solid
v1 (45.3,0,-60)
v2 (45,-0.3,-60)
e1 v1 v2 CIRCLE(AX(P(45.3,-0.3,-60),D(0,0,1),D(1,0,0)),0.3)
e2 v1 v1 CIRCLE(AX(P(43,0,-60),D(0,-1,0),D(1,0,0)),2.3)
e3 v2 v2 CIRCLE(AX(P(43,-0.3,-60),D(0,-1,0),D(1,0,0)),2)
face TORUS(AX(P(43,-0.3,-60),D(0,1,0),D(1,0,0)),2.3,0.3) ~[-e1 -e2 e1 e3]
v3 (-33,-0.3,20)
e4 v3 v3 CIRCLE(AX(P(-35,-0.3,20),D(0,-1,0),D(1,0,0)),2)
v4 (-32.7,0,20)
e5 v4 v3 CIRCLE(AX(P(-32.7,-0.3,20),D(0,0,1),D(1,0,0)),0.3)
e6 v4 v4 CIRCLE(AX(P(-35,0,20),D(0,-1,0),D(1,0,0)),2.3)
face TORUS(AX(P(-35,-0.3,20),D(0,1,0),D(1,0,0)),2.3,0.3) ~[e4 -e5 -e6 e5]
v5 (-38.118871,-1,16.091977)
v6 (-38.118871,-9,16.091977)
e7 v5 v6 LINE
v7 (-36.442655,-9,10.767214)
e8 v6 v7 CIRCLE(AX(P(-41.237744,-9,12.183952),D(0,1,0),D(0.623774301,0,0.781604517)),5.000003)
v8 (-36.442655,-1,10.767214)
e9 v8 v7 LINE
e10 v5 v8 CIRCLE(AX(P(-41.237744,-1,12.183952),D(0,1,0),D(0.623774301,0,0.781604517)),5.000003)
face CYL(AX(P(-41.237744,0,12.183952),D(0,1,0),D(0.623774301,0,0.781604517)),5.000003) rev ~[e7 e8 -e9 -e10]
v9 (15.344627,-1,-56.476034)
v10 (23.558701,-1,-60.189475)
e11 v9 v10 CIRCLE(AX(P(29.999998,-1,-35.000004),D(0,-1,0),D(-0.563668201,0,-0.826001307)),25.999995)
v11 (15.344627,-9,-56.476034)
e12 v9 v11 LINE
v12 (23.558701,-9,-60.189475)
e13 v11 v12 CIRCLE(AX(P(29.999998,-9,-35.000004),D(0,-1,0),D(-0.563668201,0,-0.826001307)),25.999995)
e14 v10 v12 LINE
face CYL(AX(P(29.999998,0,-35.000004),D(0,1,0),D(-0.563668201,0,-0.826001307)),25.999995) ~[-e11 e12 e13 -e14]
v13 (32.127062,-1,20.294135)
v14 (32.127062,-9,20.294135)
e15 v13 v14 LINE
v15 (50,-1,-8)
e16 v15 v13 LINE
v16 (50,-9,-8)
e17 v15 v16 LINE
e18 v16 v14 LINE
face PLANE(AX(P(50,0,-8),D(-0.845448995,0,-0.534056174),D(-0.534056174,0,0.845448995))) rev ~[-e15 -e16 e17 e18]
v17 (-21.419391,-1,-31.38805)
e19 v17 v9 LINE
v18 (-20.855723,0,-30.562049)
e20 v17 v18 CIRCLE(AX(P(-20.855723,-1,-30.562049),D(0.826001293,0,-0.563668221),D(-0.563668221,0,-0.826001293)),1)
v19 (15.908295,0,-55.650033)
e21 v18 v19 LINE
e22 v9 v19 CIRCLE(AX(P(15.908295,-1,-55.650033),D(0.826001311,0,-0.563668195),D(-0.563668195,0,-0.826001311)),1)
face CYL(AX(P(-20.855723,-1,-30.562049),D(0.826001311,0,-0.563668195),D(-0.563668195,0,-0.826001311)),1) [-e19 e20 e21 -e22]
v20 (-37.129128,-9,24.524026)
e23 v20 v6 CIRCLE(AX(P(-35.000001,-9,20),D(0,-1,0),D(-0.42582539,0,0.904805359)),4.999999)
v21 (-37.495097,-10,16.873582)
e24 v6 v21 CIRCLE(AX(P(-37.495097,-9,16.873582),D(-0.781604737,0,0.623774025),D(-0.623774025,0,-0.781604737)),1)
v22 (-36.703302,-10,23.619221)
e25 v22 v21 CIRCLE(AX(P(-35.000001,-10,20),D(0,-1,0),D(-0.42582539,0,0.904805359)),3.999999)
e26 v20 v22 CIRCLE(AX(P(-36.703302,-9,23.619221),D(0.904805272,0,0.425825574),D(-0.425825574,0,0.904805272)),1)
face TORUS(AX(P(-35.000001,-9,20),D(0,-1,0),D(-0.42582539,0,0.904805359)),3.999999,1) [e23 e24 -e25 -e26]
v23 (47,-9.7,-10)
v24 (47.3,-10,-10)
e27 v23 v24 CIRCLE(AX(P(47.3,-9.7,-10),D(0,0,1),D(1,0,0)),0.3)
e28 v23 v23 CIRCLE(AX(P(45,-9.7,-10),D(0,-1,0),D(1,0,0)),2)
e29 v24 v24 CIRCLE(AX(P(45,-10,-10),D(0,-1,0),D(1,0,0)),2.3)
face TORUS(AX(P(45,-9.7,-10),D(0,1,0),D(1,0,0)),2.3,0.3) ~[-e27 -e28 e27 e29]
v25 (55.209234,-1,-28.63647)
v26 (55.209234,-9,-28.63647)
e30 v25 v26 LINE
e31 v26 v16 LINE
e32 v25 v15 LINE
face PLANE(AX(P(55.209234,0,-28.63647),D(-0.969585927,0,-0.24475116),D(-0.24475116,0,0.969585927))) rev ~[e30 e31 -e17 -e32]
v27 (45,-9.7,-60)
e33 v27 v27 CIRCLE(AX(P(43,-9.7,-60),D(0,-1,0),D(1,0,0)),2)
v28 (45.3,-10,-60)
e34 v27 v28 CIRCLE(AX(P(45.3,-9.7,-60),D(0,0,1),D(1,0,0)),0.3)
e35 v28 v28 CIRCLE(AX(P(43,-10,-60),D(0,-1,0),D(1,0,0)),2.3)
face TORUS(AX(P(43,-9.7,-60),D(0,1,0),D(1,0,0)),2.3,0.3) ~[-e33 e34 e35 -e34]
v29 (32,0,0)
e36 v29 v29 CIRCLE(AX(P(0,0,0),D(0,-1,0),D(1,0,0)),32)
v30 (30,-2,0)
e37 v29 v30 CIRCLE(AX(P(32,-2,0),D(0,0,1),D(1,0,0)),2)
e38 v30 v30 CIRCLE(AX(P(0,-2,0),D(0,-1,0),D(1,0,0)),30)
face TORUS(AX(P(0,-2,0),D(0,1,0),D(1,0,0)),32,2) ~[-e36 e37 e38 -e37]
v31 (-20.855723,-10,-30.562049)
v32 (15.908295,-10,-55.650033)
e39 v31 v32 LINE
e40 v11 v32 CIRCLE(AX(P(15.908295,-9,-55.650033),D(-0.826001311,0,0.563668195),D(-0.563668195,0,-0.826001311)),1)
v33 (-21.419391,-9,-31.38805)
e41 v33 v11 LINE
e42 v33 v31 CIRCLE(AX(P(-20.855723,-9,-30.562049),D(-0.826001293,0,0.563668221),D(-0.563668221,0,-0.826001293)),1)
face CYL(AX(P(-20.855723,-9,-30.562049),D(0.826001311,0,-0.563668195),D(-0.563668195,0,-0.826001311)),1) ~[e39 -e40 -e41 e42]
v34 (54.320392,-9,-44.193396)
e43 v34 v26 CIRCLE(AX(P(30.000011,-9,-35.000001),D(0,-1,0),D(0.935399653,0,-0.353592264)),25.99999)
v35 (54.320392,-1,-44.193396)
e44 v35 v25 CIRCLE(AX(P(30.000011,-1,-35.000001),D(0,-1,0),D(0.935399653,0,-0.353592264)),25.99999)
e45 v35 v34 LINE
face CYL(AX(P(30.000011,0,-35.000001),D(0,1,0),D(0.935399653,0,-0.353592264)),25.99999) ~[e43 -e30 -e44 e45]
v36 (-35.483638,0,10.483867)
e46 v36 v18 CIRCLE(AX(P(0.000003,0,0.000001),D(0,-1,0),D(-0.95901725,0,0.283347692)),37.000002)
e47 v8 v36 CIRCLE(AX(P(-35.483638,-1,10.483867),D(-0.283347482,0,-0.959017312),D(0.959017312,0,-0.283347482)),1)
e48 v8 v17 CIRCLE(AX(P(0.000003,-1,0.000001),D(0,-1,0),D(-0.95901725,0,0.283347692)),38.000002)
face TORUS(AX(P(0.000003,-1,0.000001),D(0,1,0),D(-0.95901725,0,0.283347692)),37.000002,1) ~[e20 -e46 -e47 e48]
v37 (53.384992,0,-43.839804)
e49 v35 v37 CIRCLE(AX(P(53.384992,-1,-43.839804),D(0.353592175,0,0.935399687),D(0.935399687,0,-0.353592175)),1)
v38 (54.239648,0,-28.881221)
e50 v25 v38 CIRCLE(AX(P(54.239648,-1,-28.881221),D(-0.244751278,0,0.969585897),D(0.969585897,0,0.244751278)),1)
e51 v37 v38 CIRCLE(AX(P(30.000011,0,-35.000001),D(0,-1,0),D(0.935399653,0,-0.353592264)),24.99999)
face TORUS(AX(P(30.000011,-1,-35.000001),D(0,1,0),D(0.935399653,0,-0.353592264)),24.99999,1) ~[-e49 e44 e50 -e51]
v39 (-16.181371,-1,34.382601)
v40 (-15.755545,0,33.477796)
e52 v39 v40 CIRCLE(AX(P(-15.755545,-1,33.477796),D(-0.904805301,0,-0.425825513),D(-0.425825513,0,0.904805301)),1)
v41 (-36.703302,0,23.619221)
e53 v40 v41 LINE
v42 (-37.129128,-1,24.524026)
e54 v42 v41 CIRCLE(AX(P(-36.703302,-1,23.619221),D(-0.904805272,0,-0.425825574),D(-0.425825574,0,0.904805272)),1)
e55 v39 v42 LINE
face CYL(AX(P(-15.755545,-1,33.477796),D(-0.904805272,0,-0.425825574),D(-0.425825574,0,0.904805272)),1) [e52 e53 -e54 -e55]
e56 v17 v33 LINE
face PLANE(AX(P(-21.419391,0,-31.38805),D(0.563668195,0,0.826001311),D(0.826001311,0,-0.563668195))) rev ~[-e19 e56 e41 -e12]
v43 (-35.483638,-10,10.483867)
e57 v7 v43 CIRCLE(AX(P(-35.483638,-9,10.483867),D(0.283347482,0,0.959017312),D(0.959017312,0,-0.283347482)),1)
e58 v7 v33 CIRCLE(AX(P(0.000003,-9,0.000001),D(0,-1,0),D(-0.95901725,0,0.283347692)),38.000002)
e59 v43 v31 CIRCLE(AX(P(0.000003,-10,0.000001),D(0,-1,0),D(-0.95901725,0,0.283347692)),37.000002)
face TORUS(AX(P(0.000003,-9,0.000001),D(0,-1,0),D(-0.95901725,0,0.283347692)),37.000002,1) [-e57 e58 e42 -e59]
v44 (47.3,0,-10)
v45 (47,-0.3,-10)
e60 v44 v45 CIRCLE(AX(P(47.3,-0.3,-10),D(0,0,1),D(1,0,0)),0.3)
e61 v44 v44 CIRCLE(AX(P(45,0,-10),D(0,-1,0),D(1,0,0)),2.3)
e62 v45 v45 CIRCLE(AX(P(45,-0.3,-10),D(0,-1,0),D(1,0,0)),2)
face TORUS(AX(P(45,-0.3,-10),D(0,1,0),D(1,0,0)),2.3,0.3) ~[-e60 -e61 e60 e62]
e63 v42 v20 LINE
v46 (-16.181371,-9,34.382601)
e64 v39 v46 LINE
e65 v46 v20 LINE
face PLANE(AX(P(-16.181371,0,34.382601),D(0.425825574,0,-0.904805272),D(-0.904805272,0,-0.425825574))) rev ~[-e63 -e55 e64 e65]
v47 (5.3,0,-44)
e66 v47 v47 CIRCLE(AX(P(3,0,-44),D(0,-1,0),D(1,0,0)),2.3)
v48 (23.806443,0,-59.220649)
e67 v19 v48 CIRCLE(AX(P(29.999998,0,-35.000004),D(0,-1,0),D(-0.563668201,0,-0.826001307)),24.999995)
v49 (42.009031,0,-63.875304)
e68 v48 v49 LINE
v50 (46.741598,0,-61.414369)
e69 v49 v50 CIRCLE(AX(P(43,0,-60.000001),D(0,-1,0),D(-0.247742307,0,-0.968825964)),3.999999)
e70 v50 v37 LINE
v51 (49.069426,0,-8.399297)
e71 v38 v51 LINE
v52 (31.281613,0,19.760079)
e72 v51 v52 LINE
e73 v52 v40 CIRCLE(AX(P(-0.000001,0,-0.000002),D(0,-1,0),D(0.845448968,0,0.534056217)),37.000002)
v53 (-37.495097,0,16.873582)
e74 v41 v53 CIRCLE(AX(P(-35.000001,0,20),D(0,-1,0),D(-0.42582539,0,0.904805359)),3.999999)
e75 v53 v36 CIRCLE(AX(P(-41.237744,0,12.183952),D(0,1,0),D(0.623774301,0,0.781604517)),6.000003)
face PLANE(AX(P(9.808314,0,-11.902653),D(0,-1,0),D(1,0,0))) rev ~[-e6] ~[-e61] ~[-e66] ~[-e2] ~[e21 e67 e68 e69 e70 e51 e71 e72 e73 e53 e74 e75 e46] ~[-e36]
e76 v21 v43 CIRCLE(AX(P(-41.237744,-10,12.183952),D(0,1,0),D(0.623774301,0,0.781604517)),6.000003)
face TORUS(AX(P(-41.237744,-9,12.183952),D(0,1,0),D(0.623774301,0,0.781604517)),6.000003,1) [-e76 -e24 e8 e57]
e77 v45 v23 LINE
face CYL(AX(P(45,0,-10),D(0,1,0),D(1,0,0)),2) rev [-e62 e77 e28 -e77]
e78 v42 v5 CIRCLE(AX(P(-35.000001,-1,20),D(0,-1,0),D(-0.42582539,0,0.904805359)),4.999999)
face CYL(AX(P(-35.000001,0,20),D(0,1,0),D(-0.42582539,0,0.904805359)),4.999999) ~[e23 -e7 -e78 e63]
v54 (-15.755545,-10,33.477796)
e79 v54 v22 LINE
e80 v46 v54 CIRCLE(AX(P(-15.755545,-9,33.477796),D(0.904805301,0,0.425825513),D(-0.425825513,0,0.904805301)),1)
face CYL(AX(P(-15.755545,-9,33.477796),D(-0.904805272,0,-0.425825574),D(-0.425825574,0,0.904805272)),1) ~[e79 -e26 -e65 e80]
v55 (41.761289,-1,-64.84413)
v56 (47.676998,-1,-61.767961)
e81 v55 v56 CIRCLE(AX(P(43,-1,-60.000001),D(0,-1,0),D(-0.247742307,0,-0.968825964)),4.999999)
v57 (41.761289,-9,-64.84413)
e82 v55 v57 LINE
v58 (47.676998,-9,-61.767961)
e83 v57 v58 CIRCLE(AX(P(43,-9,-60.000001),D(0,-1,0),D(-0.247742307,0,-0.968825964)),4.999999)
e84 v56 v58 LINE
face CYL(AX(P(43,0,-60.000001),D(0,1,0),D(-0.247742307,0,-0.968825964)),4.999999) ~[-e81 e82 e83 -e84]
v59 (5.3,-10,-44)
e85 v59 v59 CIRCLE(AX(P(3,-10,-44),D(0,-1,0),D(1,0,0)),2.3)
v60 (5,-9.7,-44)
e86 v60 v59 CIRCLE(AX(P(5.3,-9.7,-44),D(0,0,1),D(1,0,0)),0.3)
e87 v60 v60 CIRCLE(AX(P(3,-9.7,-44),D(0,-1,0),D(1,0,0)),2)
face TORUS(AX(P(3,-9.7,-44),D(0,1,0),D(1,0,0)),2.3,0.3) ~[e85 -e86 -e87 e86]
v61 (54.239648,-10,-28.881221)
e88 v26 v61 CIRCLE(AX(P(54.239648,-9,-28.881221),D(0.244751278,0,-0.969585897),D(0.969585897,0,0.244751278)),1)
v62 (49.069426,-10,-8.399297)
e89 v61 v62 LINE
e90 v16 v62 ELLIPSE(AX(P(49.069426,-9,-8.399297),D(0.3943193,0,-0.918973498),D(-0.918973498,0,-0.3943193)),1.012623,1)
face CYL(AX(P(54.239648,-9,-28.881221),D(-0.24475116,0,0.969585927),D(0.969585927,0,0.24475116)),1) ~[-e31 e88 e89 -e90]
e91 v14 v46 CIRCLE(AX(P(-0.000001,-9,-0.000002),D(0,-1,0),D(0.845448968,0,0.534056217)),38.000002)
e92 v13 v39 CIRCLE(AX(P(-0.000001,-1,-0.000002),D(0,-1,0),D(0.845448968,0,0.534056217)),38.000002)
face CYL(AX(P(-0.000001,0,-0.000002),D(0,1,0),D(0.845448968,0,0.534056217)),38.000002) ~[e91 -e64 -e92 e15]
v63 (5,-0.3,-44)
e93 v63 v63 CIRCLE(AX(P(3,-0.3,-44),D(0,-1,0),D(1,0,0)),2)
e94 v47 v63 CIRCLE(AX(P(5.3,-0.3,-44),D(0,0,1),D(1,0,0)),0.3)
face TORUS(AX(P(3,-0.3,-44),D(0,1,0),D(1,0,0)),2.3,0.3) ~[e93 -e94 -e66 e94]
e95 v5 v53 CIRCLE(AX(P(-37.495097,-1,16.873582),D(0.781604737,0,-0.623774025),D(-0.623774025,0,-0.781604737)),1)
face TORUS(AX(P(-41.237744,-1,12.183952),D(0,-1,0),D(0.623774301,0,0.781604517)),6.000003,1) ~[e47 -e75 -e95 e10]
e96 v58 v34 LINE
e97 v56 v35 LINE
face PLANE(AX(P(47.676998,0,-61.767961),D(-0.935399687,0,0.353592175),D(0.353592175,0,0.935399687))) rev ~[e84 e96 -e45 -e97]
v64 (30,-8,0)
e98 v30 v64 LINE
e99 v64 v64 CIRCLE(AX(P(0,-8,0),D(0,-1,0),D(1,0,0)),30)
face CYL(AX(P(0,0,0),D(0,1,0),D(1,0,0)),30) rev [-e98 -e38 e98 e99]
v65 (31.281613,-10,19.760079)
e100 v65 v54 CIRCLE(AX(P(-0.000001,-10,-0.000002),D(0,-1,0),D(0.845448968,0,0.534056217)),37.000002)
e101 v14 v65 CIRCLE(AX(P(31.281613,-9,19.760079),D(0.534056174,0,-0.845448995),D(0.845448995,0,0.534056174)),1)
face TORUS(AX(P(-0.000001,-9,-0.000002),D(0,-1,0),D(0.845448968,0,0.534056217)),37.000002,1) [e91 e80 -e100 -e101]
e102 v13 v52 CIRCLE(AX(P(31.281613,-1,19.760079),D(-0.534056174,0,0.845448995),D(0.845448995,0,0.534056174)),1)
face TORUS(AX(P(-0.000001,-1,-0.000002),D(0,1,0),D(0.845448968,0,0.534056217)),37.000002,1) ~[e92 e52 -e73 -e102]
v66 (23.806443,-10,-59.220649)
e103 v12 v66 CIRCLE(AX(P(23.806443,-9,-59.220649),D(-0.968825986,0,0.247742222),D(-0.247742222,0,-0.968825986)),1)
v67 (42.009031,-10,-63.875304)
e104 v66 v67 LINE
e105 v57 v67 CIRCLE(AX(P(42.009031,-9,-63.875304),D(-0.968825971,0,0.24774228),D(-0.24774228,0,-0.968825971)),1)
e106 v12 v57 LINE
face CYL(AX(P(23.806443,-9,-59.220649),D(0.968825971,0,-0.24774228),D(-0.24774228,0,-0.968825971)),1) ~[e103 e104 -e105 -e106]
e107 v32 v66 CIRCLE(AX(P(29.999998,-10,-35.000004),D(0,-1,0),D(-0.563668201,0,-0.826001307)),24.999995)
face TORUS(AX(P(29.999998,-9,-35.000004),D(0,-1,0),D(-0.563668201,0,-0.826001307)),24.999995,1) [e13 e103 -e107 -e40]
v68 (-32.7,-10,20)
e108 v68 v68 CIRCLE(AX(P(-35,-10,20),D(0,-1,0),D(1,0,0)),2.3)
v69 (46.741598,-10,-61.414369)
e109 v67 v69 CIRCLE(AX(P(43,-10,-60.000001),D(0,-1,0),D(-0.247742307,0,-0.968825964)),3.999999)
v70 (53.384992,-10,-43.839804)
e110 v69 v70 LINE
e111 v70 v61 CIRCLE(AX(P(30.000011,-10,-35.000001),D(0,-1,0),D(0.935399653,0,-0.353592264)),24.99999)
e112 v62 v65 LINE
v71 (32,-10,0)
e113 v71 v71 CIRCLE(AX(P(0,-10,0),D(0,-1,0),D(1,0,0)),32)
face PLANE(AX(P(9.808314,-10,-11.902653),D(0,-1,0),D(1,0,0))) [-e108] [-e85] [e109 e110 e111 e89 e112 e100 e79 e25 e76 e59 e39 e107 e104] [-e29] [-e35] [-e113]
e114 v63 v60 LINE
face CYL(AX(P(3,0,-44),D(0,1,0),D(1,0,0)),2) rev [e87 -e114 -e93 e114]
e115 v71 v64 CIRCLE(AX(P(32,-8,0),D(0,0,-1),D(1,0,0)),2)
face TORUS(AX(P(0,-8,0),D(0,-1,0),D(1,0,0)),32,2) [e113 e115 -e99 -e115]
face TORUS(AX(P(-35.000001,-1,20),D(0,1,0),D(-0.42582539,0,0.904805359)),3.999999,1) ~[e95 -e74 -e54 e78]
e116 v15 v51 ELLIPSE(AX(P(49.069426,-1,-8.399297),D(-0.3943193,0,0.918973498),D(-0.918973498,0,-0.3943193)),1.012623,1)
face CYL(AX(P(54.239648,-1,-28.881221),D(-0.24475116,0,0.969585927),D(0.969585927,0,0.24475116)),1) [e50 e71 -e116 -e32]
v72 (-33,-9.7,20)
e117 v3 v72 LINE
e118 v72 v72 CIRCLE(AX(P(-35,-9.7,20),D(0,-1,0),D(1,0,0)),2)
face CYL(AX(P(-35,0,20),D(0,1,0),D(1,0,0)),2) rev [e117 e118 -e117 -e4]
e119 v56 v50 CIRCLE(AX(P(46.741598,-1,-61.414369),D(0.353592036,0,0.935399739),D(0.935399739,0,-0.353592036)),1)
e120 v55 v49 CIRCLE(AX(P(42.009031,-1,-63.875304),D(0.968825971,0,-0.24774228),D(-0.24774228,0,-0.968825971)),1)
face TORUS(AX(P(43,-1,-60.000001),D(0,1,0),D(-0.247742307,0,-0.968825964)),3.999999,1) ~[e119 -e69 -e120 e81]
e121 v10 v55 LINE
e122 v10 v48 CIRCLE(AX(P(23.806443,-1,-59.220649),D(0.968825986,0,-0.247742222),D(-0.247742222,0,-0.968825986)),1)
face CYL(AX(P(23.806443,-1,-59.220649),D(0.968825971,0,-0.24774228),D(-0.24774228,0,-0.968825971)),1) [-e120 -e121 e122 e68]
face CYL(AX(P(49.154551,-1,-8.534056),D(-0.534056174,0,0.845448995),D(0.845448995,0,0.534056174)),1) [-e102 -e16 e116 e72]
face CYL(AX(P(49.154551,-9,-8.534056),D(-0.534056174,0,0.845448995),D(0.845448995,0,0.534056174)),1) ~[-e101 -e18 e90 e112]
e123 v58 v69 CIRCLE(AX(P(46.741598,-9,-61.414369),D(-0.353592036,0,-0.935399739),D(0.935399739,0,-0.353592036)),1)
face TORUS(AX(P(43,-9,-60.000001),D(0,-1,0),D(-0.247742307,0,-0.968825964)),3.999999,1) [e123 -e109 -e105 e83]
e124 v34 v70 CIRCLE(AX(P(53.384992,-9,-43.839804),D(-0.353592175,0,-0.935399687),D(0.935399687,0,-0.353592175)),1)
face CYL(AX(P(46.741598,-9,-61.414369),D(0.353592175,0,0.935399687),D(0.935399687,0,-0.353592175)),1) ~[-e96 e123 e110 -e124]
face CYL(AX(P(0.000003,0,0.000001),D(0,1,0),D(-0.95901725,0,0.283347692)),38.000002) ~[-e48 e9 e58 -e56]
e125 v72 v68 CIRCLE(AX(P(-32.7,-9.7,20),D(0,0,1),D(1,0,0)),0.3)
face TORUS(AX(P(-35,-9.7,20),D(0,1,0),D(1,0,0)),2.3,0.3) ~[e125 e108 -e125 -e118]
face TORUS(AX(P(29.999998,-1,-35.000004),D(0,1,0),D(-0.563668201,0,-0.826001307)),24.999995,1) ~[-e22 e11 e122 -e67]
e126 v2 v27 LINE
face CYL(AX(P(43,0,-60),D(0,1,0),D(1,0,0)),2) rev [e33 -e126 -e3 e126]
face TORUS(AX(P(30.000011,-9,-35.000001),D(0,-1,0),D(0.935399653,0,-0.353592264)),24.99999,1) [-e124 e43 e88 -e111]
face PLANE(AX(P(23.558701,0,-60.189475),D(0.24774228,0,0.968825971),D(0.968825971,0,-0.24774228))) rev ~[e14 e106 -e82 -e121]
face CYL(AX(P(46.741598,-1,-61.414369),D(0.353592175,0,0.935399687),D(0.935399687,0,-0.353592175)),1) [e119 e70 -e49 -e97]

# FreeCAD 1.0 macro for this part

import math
import FreeCAD as App
import Part
import Sketcher


def edges_at(feature, points):
    """Names of the edges that pass closest to the given points."""
    edges = feature.Shape.Edges
    near = lambda p: min(range(len(edges)), key=lambda i: edges[i].distToShape(Part.Vertex(*p))[0])
    return sorted({f"Edge{near(p) + 1}" for p in points})

doc = App.newDocument("Part")
body = doc.addObject("PartDesign::Body", "Body")

# Sketch on XZ plane
sketch1 = body.newObject("Sketcher::SketchObject", "Sketch")
sketch1.AttachmentSupport = (doc.getObject("XZ_Plane"), [""])
sketch1.MapMode = "FlatFace"
sketch1.addGeometry([
    Part.LineSegment(App.Vector(50, -8, 0), App.Vector(32.1, 20.3, 0)),  # 0
    Part.ArcOfCircle(Part.Circle(App.Vector(0, 0, 0), App.Vector(0, 0, 1), 38), math.radians(32), math.radians(115)),  # 1
    Part.LineSegment(App.Vector(-16.2, 34.4, 0), App.Vector(-37.1, 24.5, 0)),  # 2
    Part.ArcOfCircle(Part.Circle(App.Vector(-35, 20, 0), App.Vector(0, 0, 1), 5), math.radians(115), math.radians(231)),  # 3
    Part.ArcOfCircle(Part.Circle(App.Vector(-41.2, 12.2, 0), App.Vector(0, 0, 1), 5), math.radians(-16), math.radians(51)),  # 4
    Part.ArcOfCircle(Part.Circle(App.Vector(0, 0, 0), App.Vector(0, 0, 1), 38), math.radians(164), math.radians(236)),  # 5
    Part.LineSegment(App.Vector(-21.4, -31.4, 0), App.Vector(15.3, -56.5, 0)),  # 6
    Part.ArcOfCircle(Part.Circle(App.Vector(30, -35, 0), App.Vector(0, 0, 1), 26), math.radians(-124.31), math.radians(-104.34)),  # 7
    Part.LineSegment(App.Vector(23.6, -60.2, 0), App.Vector(41.8, -64.8, 0)),  # 8
    Part.ArcOfCircle(Part.Circle(App.Vector(43, -60, 0), App.Vector(0, 0, 1), 5), math.radians(-104), math.radians(-21)),  # 9
    Part.LineSegment(App.Vector(47.7, -61.8, 0), App.Vector(54.3, -44.2, 0)),  # 10
    Part.ArcOfCircle(Part.Circle(App.Vector(30, -35, 0), App.Vector(0, 0, 1), 26), math.radians(-21), math.radians(14)),  # 11
    Part.LineSegment(App.Vector(55.2, -28.6, 0), App.Vector(50, -8, 0)),  # 12
    Part.Circle(App.Vector(3, -44, 0), App.Vector(0, 0, 1), 2),  # 13
    Part.Circle(App.Vector(43, -60, 0), App.Vector(0, 0, 1), 2),  # 14
    Part.Circle(App.Vector(0, 0, 0), App.Vector(0, 0, 1), 30),  # 15
    Part.Circle(App.Vector(-35, 20, 0), App.Vector(0, 0, 1), 2),  # 16
    Part.Circle(App.Vector(45, -10, 0), App.Vector(0, 0, 1), 2),  # 17
], False)
sketch1.addConstraint([
    Sketcher.Constraint("Tangent", 0, 2, 1, 1),
    Sketcher.Constraint("Tangent", 1, 2, 2, 1),
    Sketcher.Constraint("Tangent", 2, 2, 3, 1),
    Sketcher.Constraint("Tangent", 3, 2, 4, 2),
    Sketcher.Constraint("Tangent", 4, 1, 5, 1),
    Sketcher.Constraint("Tangent", 5, 2, 6, 1),
    Sketcher.Constraint("Tangent", 6, 2, 7, 1),
    Sketcher.Constraint("Tangent", 7, 2, 8, 1),
    Sketcher.Constraint("Tangent", 8, 2, 9, 1),
    Sketcher.Constraint("Tangent", 9, 2, 10, 1),
    Sketcher.Constraint("Tangent", 10, 2, 11, 1),
    Sketcher.Constraint("Tangent", 11, 2, 12, 1),
    Sketcher.Constraint("Coincident", 12, 2, 0, 1),
    Sketcher.Constraint("Coincident", 1, 3, -1, 1),
    Sketcher.Constraint("Coincident", 5, 3, -1, 1),
    Sketcher.Constraint("Coincident", 15, 3, -1, 1),
    Sketcher.Constraint("Coincident", 14, 3, 9, 3),
    Sketcher.Constraint("Coincident", 16, 3, 3, 3),
    Sketcher.Constraint("Equal", 1, 5),
    Sketcher.Constraint("Equal", 3, 9),
    Sketcher.Constraint("Equal", 13, 14),
    Sketcher.Constraint("Equal", 14, 16),
    Sketcher.Constraint("Equal", 16, 17),
    Sketcher.Constraint("Equal", 8, 10),
    Sketcher.Constraint("Diameter", 13, 4.0),
    Sketcher.Constraint("Diameter", 15, 60.0),
    Sketcher.Constraint("Radius", 3, 4.999999),
    Sketcher.Constraint("DistanceX", 3, 3, -1, 1, 35.000001),
    Sketcher.Constraint("DistanceY", -1, 1, 3, 3, 20.0),
    Sketcher.Constraint("DistanceX", -1, 1, 9, 3, 43.0),
    Sketcher.Constraint("DistanceY", 9, 3, -1, 1, 60.000001),
    Sketcher.Constraint("DistanceY", 11, 3, -1, 1, 35.000001),
    Sketcher.Constraint("DistanceX", -1, 1, 13, 3, 3.0),
    Sketcher.Constraint("DistanceY", 13, 3, -1, 1, 44.0),
    Sketcher.Constraint("DistanceX", -1, 1, 17, 3, 45.0),
    Sketcher.Constraint("DistanceY", 17, 3, -1, 1, 10.0),
    Sketcher.Constraint("DistanceX", -1, 1, 12, 2, 50.0),
    Sketcher.Constraint("DistanceY", 12, 2, -1, 1, 8.0),
    Sketcher.Constraint("DistanceX", 1, 3, 7, 3, 29.999998),
    Sketcher.Constraint("DistanceY", 7, 3, 1, 3, 35.000001),
    Sketcher.Constraint("Radius", 11, 25.99999),
    Sketcher.Constraint("DistanceX", -1, 1, 9, 2, 47.676998),
    Sketcher.Constraint("Radius", 1, 38.000002),
    Sketcher.Constraint("Radius", 4, 5.000003),
])
pad1 = body.newObject("PartDesign::Pad", "Pad")
pad1.Profile = sketch1
pad1.Length = 10
doc.recompute()

fillet = body.newObject("PartDesign::Fillet", "Fillet")
fillet.Base = (pad1, edges_at(pad1, [(10.639, -10, 36.48), (10.639, 0, 36.48)]))
fillet.Radius = 1
doc.recompute()

fillet2 = body.newObject("PartDesign::Fillet", "Fillet001")
fillet2.Base = (fillet, edges_at(fillet, [(-30, -10, 0), (-30, 0, 0)]))
fillet2.Radius = 2
doc.recompute()

fillet3 = body.newObject("PartDesign::Fillet", "Fillet002")
fillet3.Base = (fillet2, edges_at(fillet2, [
    (-37, 0, 20),
    (1, 0, -44),
    (43, 0, -10),
    (41, 0, -60),
    (-37, -10, 20),
    (1, -10, -44),
    (43, -10, -10),
    (41, -10, -60),
]))
fillet3.Radius = 0.3

doc.recompute()
